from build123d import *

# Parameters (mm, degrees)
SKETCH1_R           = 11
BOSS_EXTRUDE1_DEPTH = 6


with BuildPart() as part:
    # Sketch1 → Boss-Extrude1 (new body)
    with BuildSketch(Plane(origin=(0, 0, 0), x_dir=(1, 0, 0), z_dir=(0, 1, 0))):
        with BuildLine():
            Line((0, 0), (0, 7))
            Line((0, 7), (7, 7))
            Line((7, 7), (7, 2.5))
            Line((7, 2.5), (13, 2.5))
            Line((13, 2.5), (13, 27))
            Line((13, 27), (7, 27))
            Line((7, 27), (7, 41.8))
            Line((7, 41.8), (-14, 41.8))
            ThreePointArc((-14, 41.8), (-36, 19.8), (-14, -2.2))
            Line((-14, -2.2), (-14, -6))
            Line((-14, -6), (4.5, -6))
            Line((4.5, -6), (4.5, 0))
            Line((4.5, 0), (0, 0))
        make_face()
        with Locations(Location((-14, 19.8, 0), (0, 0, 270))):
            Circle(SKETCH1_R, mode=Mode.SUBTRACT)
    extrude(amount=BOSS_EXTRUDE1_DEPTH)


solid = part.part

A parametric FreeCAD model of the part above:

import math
import FreeCAD as App
import Part
import Sketcher
from FreeCAD import Vector

doc = App.newDocument("Part")
params = doc.addObject("Spreadsheet::Sheet", "Params")
for row, (alias, value) in enumerate([
    ("sketch1_diameter", "22 mm"),
    ("sketch1_radius", "22 mm"),
    ("sketch1_width", "7 mm"),
    ("sketch1_width2", "6 mm"),
    ("sketch1_width3", "21 mm"),
    ("pad1_length", "6 mm"),
], start=1):
    params.set(f"A{row}", alias)
    params.set(f"B{row}", "=" + value)
    params.setAlias(f"B{row}", alias)

body = doc.addObject("PartDesign::Body", "Body")

# Sketch on XZ plane
sketch1 = body.newObject("Sketcher::SketchObject", "Sketch")
sketch1.AttachmentSupport = (doc.getObject("XZ_Plane"), [""])
sketch1.MapMode = "FlatFace"
sketch1.addGeometry([
    Part.LineSegment(Vector(0, 0, 0), Vector(0, -7, 0)),  # 0
    Part.LineSegment(Vector(0, -7, 0), Vector(7, -7, 0)),  # 1
    Part.LineSegment(Vector(7, -7, 0), Vector(7, -2.5, 0)),  # 2
    Part.LineSegment(Vector(7, -2.5, 0), Vector(13, -2.5, 0)),  # 3
    Part.LineSegment(Vector(13, -2.5, 0), Vector(13, -27, 0)),  # 4
    Part.LineSegment(Vector(13, -27, 0), Vector(7, -27, 0)),  # 5
    Part.LineSegment(Vector(7, -27, 0), Vector(7, -41.8, 0)),  # 6
    Part.LineSegment(Vector(7, -41.8, 0), Vector(-14, -41.8, 0)),  # 7
    Part.ArcOfCircle(Part.Circle(Vector(-14, -19.8, 0), Vector(0, 0, 1), 22), math.radians(90), math.radians(270)),  # 8
    Part.LineSegment(Vector(-14, 2.2, 0), Vector(-14, 6, 0)),  # 9
    Part.LineSegment(Vector(-14, 6, 0), Vector(4.5, 6, 0)),  # 10
    Part.LineSegment(Vector(4.5, 6, 0), Vector(4.5, 0, 0)),  # 11
    Part.LineSegment(Vector(4.5, 0, 0), Vector(0, 0, 0)),  # 12
    Part.Circle(Vector(-14, -19.8, 0), Vector(0, 0, 1), 11),  # 13
], False)
sketch1.addConstraint([
    Sketcher.Constraint("Coincident", 0, 2, 1, 1),
    Sketcher.Constraint("Coincident", 1, 2, 2, 1),
    Sketcher.Constraint("Coincident", 2, 2, 3, 1),
    Sketcher.Constraint("Coincident", 3, 2, 4, 1),
    Sketcher.Constraint("Coincident", 4, 2, 5, 1),
    Sketcher.Constraint("Coincident", 5, 2, 6, 1),
    Sketcher.Constraint("Coincident", 6, 2, 7, 1),
    Sketcher.Constraint("Tangent", 7, 2, 8, 2),
    Sketcher.Constraint("Coincident", 8, 1, 9, 1),
    Sketcher.Constraint("Coincident", 9, 2, 10, 1),
    Sketcher.Constraint("Coincident", 10, 2, 11, 1),
    Sketcher.Constraint("Coincident", 11, 2, 12, 1),
    Sketcher.Constraint("Coincident", 12, 2, 0, 1),
    Sketcher.Constraint("Vertical", 0),
    Sketcher.Constraint("Horizontal", 1),
    Sketcher.Constraint("Vertical", 2),
    Sketcher.Constraint("Horizontal", 3),
    Sketcher.Constraint("Vertical", 4),
    Sketcher.Constraint("Horizontal", 5),
    Sketcher.Constraint("Vertical", 6),
    Sketcher.Constraint("Horizontal", 7),
    Sketcher.Constraint("Vertical", 9),
    Sketcher.Constraint("Horizontal", 10),
    Sketcher.Constraint("Vertical", 11),
    Sketcher.Constraint("Horizontal", 12),
    Sketcher.Constraint("Coincident", 12, 2, -1, 1),
    Sketcher.Constraint("Coincident", 13, 3, 8, 3),
    Sketcher.Constraint("Vertical", 2, 2, 5, 2),
    Sketcher.Constraint("Vertical", 7, 2, 8, 1),
    Sketcher.Constraint("Equal", 1, 0),
    Sketcher.Constraint("Equal", 12, 2),
    Sketcher.Constraint("Equal", 5, 11),
    Sketcher.Constraint("Diameter", 13, 22.0),
    Sketcher.Constraint("Radius", 8, 22.0),
    Sketcher.Constraint("DistanceX", 1, 1, 1, 2, 7.0),
    Sketcher.Constraint("DistanceX", 3, 1, 3, 2, 6.0),
    Sketcher.Constraint("DistanceX", 7, 2, 7, 1, 21.0),
    Sketcher.Constraint("DistanceX", 10, 1, 10, 2, 18.5),
    Sketcher.Constraint("DistanceY", 4, 2, 4, 1, 24.5),
    Sketcher.Constraint("DistanceY", 6, 2, 6, 1, 14.8),
])
sketch1.setExpression("Constraints[32]", "Params.sketch1_diameter")
sketch1.setExpression("Constraints[33]", "Params.sketch1_radius")
sketch1.setExpression("Constraints[34]", "Params.sketch1_width")
sketch1.setExpression("Constraints[35]", "Params.sketch1_width2")
sketch1.setExpression("Constraints[36]", "Params.sketch1_width3")
pad1 = body.newObject("PartDesign::Pad", "Pad")
pad1.Profile = sketch1
pad1.setExpression("Length", "Params.pad1_length")
pad1.Reversed = True

doc.recompute()
